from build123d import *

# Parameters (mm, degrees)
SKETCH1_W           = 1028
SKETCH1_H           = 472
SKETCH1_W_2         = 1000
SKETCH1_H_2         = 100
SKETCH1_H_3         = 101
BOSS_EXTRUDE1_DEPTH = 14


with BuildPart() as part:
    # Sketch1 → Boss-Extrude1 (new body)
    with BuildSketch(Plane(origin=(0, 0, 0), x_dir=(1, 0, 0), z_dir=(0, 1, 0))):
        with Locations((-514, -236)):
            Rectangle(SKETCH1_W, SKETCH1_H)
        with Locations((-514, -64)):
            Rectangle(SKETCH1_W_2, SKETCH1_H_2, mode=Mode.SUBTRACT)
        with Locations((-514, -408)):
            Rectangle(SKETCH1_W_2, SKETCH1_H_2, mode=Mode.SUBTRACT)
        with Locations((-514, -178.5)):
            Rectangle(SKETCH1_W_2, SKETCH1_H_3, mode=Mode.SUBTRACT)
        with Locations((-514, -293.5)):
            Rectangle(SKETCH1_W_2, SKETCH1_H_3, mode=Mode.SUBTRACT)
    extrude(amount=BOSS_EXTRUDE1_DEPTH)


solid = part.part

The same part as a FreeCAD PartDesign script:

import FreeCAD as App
import Part
import Sketcher
from FreeCAD import Vector
Q = App.Units.Quantity

doc = App.newDocument("Part")
params = doc.addObject("Spreadsheet::Sheet", "Params")
for row, (alias, value) in enumerate([
    ("sketch1_width", "1028 mm"),
    ("sketch1_width2", "1000 mm"),
    ("sketch1_height", "472 mm"),
    ("sketch1_height2", "100 mm"),
    ("sketch1_height3", "101 mm"),
    ("pad1_length", "14 mm"),
], start=1):
    params.set(f"A{row}", alias)
    params.set(f"B{row}", "=" + value)
    params.setAlias(f"B{row}", alias)

body = doc.addObject("PartDesign::Body", "Body")

# Sketch on XZ plane
sketch1 = body.newObject("Sketcher::SketchObject", "Sketch")
sketch1.AttachmentSupport = (doc.getObject("XZ_Plane"), [""])
sketch1.MapMode = "FlatFace"
sketch1.addGeometry([
    Part.LineSegment(Vector(-1028, 0, 0), Vector(-1028, 472, 0)),  # 0
    Part.LineSegment(Vector(-1028, 472, 0), Vector(0, 472, 0)),  # 1
    Part.LineSegment(Vector(0, 472, 0), Vector(0, 0, 0)),  # 2
    Part.LineSegment(Vector(0, 0, 0), Vector(-1028, 0, 0)),  # 3
    Part.LineSegment(Vector(-14, 458, 0), Vector(-1014, 458, 0)),  # 4
    Part.LineSegment(Vector(-1014, 458, 0), Vector(-1014, 358, 0)),  # 5
    Part.LineSegment(Vector(-1014, 358, 0), Vector(-14, 358, 0)),  # 6
    Part.LineSegment(Vector(-14, 358, 0), Vector(-14, 458, 0)),  # 7
    Part.LineSegment(Vector(-14, 344, 0), Vector(-1014, 344, 0)),  # 8
    Part.LineSegment(Vector(-1014, 344, 0), Vector(-1014, 243, 0)),  # 9
    Part.LineSegment(Vector(-1014, 243, 0), Vector(-14, 243, 0)),  # 10
    Part.LineSegment(Vector(-14, 243, 0), Vector(-14, 344, 0)),  # 11
    Part.LineSegment(Vector(-14, 229, 0), Vector(-1014, 229, 0)),  # 12
    Part.LineSegment(Vector(-1014, 229, 0), Vector(-1014, 128, 0)),  # 13
    Part.LineSegment(Vector(-1014, 128, 0), Vector(-14, 128, 0)),  # 14
    Part.LineSegment(Vector(-14, 128, 0), Vector(-14, 229, 0)),  # 15
    Part.LineSegment(Vector(-14, 114, 0), Vector(-1014, 114, 0)),  # 16
    Part.LineSegment(Vector(-1014, 114, 0), Vector(-1014, 14, 0)),  # 17
    Part.LineSegment(Vector(-1014, 14, 0), Vector(-14, 14, 0)),  # 18
    Part.LineSegment(Vector(-14, 14, 0), Vector(-14, 114, 0)),  # 19
], False)
sketch1.addConstraint([
    Sketcher.Constraint("Coincident", 0, 2, 1, 1),
    Sketcher.Constraint("Coincident", 1, 2, 2, 1),
    Sketcher.Constraint("Coincident", 2, 2, 3, 1),
    Sketcher.Constraint("Coincident", 3, 2, 0, 1),
    Sketcher.Constraint("Coincident", 4, 2, 5, 1),
    Sketcher.Constraint("Coincident", 5, 2, 6, 1),
    Sketcher.Constraint("Coincident", 6, 2, 7, 1),
    Sketcher.Constraint("Coincident", 7, 2, 4, 1),
    Sketcher.Constraint("Coincident", 8, 2, 9, 1),
    Sketcher.Constraint("Coincident", 9, 2, 10, 1),
    Sketcher.Constraint("Coincident", 10, 2, 11, 1),
    Sketcher.Constraint("Coincident", 11, 2, 8, 1),
    Sketcher.Constraint("Coincident", 12, 2, 13, 1),
    Sketcher.Constraint("Coincident", 13, 2, 14, 1),
    Sketcher.Constraint("Coincident", 14, 2, 15, 1),
    Sketcher.Constraint("Coincident", 15, 2, 12, 1),
    Sketcher.Constraint("Coincident", 16, 2, 17, 1),
    Sketcher.Constraint("Coincident", 17, 2, 18, 1),
    Sketcher.Constraint("Coincident", 18, 2, 19, 1),
    Sketcher.Constraint("Coincident", 19, 2, 16, 1),
    Sketcher.Constraint("Vertical", 0),
    Sketcher.Constraint("Horizontal", 1),
    Sketcher.Constraint("Vertical", 2),
    Sketcher.Constraint("Horizontal", 3),
    Sketcher.Constraint("Horizontal", 4),
    Sketcher.Constraint("Vertical", 5),
    Sketcher.Constraint("Horizontal", 6),
    Sketcher.Constraint("Vertical", 7),
    Sketcher.Constraint("Horizontal", 8),
    Sketcher.Constraint("Vertical", 9),
    Sketcher.Constraint("Horizontal", 10),
    Sketcher.Constraint("Vertical", 11),
    Sketcher.Constraint("Horizontal", 12),
    Sketcher.Constraint("Vertical", 13),
    Sketcher.Constraint("Horizontal", 14),
    Sketcher.Constraint("Vertical", 15),
    Sketcher.Constraint("Horizontal", 16),
    Sketcher.Constraint("Vertical", 17),
    Sketcher.Constraint("Horizontal", 18),
    Sketcher.Constraint("Vertical", 19),
    Sketcher.Constraint("Coincident", 2, 2, -1, 1),
    Sketcher.Constraint("Vertical", 5, 2, 8, 2),
    Sketcher.Constraint("Vertical", 7, 2, 10, 2),
    Sketcher.Constraint("Vertical", 9, 2, 12, 2),
    Sketcher.Constraint("Vertical", 11, 2, 14, 2),
    Sketcher.Constraint("Vertical", 13, 2, 16, 2),
    Sketcher.Constraint("Vertical", 15, 2, 18, 2),
    Sketcher.Constraint("Equal", 11, 13),
    Sketcher.Constraint("Equal", 7, 17),
    Sketcher.Constraint("DistanceX", 1, 1, 1, 2, Q("1028 mm")),
    Sketcher.Constraint("DistanceX", 4, 2, 4, 1, Q("1000 mm")),
    Sketcher.Constraint("DistanceY", 0, 1, 0, 2, Q("472 mm")),
    Sketcher.Constraint("DistanceY", 5, 2, 5, 1, Q("100 mm")),
    Sketcher.Constraint("DistanceY", 9, 2, 9, 1, Q("101 mm")),
    Sketcher.Constraint("DistanceX", 4, 2, -1, 1, Q("1014 mm")),
    Sketcher.Constraint("DistanceY", -1, 1, 4, 2, Q("458 mm")),
    Sketcher.Constraint("DistanceY", -1, 1, 8, 2, Q("344 mm")),
    Sketcher.Constraint("DistanceY", -1, 1, 12, 2, Q("229 mm")),
    Sketcher.Constraint("DistanceY", -1, 1, 16, 2, Q("114 mm")),
])
sketch1.setExpression("Constraints[49]", "Params.sketch1_width")
sketch1.setExpression("Constraints[50]", "Params.sketch1_width2")
sketch1.setExpression("Constraints[51]", "Params.sketch1_height")
sketch1.setExpression("Constraints[52]", "Params.sketch1_height2")
sketch1.setExpression("Constraints[53]", "Params.sketch1_height3")
pad1 = body.newObject("PartDesign::Pad", "Pad")
pad1.Profile = sketch1
pad1.setExpression("Length", "Params.pad1_length")
pad1.Reversed = True

doc.recompute()
